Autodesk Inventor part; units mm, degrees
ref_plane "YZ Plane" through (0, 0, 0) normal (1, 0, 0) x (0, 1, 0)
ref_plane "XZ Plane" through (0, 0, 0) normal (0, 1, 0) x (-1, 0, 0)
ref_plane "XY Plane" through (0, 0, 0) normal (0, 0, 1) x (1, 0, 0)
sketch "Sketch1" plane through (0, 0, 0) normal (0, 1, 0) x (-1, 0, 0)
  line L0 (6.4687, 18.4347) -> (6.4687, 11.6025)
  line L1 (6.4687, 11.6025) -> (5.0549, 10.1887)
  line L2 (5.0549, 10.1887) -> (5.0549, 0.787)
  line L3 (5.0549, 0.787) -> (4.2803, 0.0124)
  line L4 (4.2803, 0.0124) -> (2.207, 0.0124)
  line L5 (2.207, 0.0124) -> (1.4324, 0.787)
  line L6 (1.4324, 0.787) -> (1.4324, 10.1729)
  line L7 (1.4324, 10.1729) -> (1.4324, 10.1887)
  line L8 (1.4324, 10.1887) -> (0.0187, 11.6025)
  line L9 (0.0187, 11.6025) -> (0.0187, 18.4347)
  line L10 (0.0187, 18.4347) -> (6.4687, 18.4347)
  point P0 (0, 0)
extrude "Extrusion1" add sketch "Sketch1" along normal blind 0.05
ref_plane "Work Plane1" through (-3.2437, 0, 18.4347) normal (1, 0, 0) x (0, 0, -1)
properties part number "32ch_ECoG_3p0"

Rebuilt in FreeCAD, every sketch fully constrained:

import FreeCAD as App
import Part
import Sketcher

V = App.Vector

doc = App.newDocument("Part")
params = doc.addObject("Spreadsheet::Sheet", "Params")
for row, (alias, value) in enumerate([
    ("sketch1_width", "6.45 mm"),
    ("pad1_length", "0.05 mm"),
], start=1):
    params.set(f"A{row}", alias)
    params.set(f"B{row}", "=" + value)
    params.setAlias(f"B{row}", alias)

body = doc.addObject("PartDesign::Body", "Body")

# Sketch on XZ plane
sketch1 = body.newObject("Sketcher::SketchObject", "Sketch")
sketch1.AttachmentSupport = (doc.getObject("XZ_Plane"), [""])
sketch1.MapMode = "FlatFace"
sketch1.addGeometry(Part.LineSegment(V(-6.5, 11.6, 0), V(-6.5, 18.4, 0)), False)
sketch1.addGeometry(Part.LineSegment(V(-6.5, 18.4, 0), V(0, 18.4, 0)), False)
sketch1.addGeometry(Part.LineSegment(V(0, 18.4, 0), V(0, 11.6, 0)), False)
sketch1.addGeometry(Part.LineSegment(V(0, 11.6, 0), V(-1.4, 10.2, 0)), False)
sketch1.addGeometry(Part.LineSegment(V(-1.4, 10.2, 0), V(-1.4, 0.8, 0)), False)
sketch1.addGeometry(Part.LineSegment(V(-1.4, 0.8, 0), V(-2.2, 0, 0)), False)
sketch1.addGeometry(Part.LineSegment(V(-2.2, 0, 0), V(-4.3, 0, 0)), False)
sketch1.addGeometry(Part.LineSegment(V(-4.3, 0, 0), V(-5.1, 0.8, 0)), False)
sketch1.addGeometry(Part.LineSegment(V(-5.1, 0.8, 0), V(-5.1, 10.2, 0)), False)
sketch1.addGeometry(Part.LineSegment(V(-5.1, 10.2, 0), V(-6.5, 11.6, 0)), False)
sketch1.addConstraint(Sketcher.Constraint("Coincident", 0, 2, 1, 1))
sketch1.addConstraint(Sketcher.Constraint("Coincident", 1, 2, 2, 1))
sketch1.addConstraint(Sketcher.Constraint("Coincident", 2, 2, 3, 1))
sketch1.addConstraint(Sketcher.Constraint("Coincident", 3, 2, 4, 1))
sketch1.addConstraint(Sketcher.Constraint("Coincident", 4, 2, 5, 1))
sketch1.addConstraint(Sketcher.Constraint("Coincident", 5, 2, 6, 1))
sketch1.addConstraint(Sketcher.Constraint("Coincident", 6, 2, 7, 1))
sketch1.addConstraint(Sketcher.Constraint("Coincident", 7, 2, 8, 1))
sketch1.addConstraint(Sketcher.Constraint("Coincident", 8, 2, 9, 1))
sketch1.addConstraint(Sketcher.Constraint("Coincident", 9, 2, 0, 1))
sketch1.addConstraint(Sketcher.Constraint("Vertical", 0))
sketch1.addConstraint(Sketcher.Constraint("Horizontal", 1))
sketch1.addConstraint(Sketcher.Constraint("Vertical", 2))
sketch1.addConstraint(Sketcher.Constraint("Vertical", 4))
sketch1.addConstraint(Sketcher.Constraint("Horizontal", 6))
sketch1.addConstraint(Sketcher.Constraint("Vertical", 8))
sketch1.addConstraint(Sketcher.Constraint("Parallel", 3, 5))
sketch1.addConstraint(Sketcher.Constraint("Perpendicular", 5, 7))
sketch1.addConstraint(Sketcher.Constraint("Parallel", 7, 9))
sketch1.addConstraint(Sketcher.Constraint("Horizontal", 4, 2, 7, 2))
sketch1.addConstraint(Sketcher.Constraint("Horizontal", 3, 2, 8, 2))
sketch1.addConstraint(Sketcher.Constraint("Horizontal", 2, 2, 9, 2))
sketch1.addConstraint(Sketcher.Constraint("Equal", 5, 7))
sketch1.addConstraint(Sketcher.Constraint("DistanceX", 1, 1, 1, 2, 6.45))
sketch1.addConstraint(Sketcher.Constraint("DistanceY", 5, 2, 2, 2, 11.59))
sketch1.addConstraint(Sketcher.Constraint("DistanceX", 6, 2, 6, 1, 2.0733))
sketch1.addConstraint(Sketcher.Constraint("DistanceY", 0, 1, 0, 2, 6.8322))
sketch1.addConstraint(Sketcher.Constraint("DistanceY", -1, 1, 4, 2, 0.787))
sketch1.addConstraint(Sketcher.Constraint("DistanceX", 5, 2, -1, 1, 2.207))
sketch1.addConstraint(Sketcher.Constraint("DistanceX", 7, 2, -1, 1, 5.055))
sketch1.setExpression("Constraints[23]", "Params.sketch1_width")
pad1 = body.newObject("PartDesign::Pad", "Pad")
pad1.Profile = sketch1
pad1.setExpression("Length", "Params.pad1_length")
pad1.Reversed = True

doc.recompute()
